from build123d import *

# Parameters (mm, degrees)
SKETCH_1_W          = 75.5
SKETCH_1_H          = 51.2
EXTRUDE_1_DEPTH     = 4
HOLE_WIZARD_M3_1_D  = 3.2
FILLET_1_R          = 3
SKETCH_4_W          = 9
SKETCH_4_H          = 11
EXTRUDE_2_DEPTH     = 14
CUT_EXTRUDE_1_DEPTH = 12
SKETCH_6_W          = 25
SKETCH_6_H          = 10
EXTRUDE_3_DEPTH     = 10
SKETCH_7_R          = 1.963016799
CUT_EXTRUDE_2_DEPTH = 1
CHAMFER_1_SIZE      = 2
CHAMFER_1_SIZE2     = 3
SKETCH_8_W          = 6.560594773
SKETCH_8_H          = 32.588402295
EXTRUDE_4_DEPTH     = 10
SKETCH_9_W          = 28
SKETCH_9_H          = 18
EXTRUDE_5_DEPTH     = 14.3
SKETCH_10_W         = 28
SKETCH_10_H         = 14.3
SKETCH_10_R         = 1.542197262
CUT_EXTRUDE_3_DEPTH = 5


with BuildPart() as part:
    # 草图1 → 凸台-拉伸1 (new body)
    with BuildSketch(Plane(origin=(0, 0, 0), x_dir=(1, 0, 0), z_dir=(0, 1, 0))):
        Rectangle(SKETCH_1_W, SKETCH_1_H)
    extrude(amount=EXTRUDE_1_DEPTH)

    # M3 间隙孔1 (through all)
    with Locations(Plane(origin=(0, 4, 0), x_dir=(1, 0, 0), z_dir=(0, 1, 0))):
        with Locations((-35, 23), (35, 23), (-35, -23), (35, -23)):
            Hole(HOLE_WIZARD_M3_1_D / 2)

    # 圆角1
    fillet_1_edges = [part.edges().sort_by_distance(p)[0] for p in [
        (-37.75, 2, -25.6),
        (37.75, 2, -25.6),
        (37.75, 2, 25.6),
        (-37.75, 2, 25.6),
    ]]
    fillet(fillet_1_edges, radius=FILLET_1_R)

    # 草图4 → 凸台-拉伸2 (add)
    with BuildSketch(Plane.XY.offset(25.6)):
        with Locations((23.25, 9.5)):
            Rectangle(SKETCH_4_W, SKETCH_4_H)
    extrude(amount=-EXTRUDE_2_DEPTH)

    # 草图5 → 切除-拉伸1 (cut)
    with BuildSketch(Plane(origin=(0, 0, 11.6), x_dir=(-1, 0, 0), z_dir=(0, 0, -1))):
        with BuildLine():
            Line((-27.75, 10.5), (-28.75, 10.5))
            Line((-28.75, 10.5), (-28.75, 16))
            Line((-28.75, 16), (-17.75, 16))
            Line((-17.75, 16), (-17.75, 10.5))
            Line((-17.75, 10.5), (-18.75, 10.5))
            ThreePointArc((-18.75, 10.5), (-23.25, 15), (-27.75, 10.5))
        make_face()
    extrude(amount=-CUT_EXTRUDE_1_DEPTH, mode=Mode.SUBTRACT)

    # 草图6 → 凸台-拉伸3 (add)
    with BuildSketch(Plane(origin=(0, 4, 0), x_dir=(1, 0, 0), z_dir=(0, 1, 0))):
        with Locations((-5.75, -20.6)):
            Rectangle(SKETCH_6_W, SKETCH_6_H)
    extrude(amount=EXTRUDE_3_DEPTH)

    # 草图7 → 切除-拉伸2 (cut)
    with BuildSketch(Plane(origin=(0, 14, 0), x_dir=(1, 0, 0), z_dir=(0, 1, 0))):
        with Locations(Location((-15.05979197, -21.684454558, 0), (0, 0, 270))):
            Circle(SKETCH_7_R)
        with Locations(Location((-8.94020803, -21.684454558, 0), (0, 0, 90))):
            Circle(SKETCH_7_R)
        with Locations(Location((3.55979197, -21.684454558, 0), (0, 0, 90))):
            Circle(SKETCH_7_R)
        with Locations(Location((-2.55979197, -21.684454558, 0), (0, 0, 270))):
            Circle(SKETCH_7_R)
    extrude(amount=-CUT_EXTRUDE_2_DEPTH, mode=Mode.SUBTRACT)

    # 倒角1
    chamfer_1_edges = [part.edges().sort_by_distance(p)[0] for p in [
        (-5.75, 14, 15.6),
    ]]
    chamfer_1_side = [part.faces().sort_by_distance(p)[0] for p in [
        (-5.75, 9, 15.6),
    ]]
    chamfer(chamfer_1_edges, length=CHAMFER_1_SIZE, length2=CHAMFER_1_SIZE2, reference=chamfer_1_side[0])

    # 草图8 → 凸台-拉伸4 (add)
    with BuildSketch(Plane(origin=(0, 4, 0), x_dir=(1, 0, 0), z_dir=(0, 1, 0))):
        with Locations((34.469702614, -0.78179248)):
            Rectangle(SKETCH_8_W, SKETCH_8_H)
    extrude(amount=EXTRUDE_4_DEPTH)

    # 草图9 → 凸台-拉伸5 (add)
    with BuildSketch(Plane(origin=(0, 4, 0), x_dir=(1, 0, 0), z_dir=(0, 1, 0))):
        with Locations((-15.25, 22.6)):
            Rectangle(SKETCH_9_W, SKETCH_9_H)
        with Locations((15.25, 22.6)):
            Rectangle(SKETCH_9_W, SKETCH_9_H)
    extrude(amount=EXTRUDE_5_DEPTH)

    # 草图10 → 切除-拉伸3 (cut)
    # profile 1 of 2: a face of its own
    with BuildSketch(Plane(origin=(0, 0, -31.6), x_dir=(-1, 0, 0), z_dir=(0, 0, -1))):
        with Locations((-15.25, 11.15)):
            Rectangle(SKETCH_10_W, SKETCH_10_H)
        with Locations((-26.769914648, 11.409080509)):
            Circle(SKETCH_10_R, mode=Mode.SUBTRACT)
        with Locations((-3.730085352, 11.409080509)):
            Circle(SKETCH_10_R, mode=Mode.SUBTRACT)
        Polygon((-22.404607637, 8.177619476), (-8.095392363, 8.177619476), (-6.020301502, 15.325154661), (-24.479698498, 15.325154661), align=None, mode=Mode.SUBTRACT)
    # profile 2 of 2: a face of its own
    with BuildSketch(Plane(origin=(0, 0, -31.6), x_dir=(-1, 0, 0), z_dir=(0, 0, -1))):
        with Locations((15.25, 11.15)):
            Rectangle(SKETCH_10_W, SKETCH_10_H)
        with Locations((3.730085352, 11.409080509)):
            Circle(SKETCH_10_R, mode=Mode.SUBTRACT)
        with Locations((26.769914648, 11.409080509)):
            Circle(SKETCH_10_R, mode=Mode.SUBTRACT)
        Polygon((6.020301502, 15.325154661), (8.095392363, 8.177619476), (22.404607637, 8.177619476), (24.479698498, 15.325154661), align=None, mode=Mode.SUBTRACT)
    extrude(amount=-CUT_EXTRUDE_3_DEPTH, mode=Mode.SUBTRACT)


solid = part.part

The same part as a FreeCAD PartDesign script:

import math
import FreeCAD as App
import Part
import Sketcher

V = App.Vector
Q = App.Units.Quantity


def edges_at(feature, points):
    """Names of the edges that pass closest to the given points."""
    edges = feature.Shape.Edges
    near = lambda p: min(range(len(edges)), key=lambda i: edges[i].distToShape(Part.Vertex(*p))[0])
    return sorted({f"Edge{near(p) + 1}" for p in points})


def add_polygon(sketch, points):
    """Adds a closed chain of lines whose ends are joined by coincident constraints."""
    first, n = sketch.GeometryCount, len(points)
    for a, b in zip(points, points[1:] + points[:1]):
        sketch.addGeometry(Part.LineSegment(App.Vector(*a, 0), App.Vector(*b, 0)), False)
    for i in range(n):
        sketch.addConstraint(Sketcher.Constraint("Coincident", first + i, 2, first + (i + 1) % n, 1))

doc = App.newDocument("Part")
body = doc.addObject("PartDesign::Body", "Body")

sketch1 = body.newObject("Sketcher::SketchObject", "Sketch")
sketch1.AttachmentSupport = (doc.getObject("XZ_Plane"), [""])
sketch1.MapMode = "FlatFace"
add_polygon(sketch1, [(-38, -26), (-38, 26), (38, 26), (38, -26)])
sketch1.addConstraint(Sketcher.Constraint("Vertical", 0))
sketch1.addConstraint(Sketcher.Constraint("Horizontal", 1))
sketch1.addConstraint(Sketcher.Constraint("Vertical", 2))
sketch1.addConstraint(Sketcher.Constraint("Horizontal", 3))
sketch1.addConstraint(Sketcher.Constraint("Symmetric", 0, 2, 2, 2, -1, 1))
sketch1.addConstraint(Sketcher.Constraint("DistanceX", 1, 1, 1, 2, Q("75.5 mm")))
sketch1.addConstraint(Sketcher.Constraint("DistanceY", 0, 1, 0, 2, Q("51.2 mm")))
pad1 = body.newObject("PartDesign::Pad", "Pad")
pad1.Profile = sketch1
pad1.Length = 4
pad1.Reversed = True

sketch2 = body.newObject("Sketcher::SketchObject", "Sketch001")
sketch2.AttachmentSupport = (doc.getObject("XZ_Plane"), [""])
sketch2.MapMode = "FlatFace"
sketch2.AttachmentOffset = App.Placement(V(0, 0, -4), App.Rotation())
sketch2.addGeometry(Part.Circle(V(-35, -23, 0), V(0, 0, 1), 1.6), False)
sketch2.addGeometry(Part.Circle(V(35, -23, 0), V(0, 0, 1), 1.6), False)
sketch2.addGeometry(Part.Circle(V(-35, 23, 0), V(0, 0, 1), 1.6), False)
sketch2.addGeometry(Part.Circle(V(35, 23, 0), V(0, 0, 1), 1.6), False)
sketch2.addConstraint(Sketcher.Constraint("Equal", 0, 1))
sketch2.addConstraint(Sketcher.Constraint("Equal", 1, 2))
sketch2.addConstraint(Sketcher.Constraint("Equal", 2, 3))
sketch2.addConstraint(Sketcher.Constraint("Symmetric", 1, 3, 2, 3, -1, 1))
sketch2.addConstraint(Sketcher.Constraint("Symmetric", 0, 3, 3, 3, -1, 1))
sketch2.addConstraint(Sketcher.Constraint("Symmetric", 0, 3, 1, 3, -2))
sketch2.addConstraint(Sketcher.Constraint("Diameter", 0, Q("3.2 mm")))
sketch2.addConstraint(Sketcher.Constraint("DistanceX", 0, 3, -1, 1, Q("35 mm")))
sketch2.addConstraint(Sketcher.Constraint("DistanceY", 0, 3, -1, 1, Q("23 mm")))
doc.recompute()
hole = body.newObject("PartDesign::Hole", "Hole")
hole.Profile = sketch2
hole.ThreadType = "None"
hole.Diameter = 3.2
hole.DepthType = "ThroughAll"
hole.Reversed = True
doc.recompute()

fillet = body.newObject("PartDesign::Fillet", "Fillet")
fillet.Base = (hole, edges_at(hole, [
    (-37.75, 2, -25.6),
    (37.75, 2, -25.6),
    (37.75, 2, 25.6),
    (-37.75, 2, 25.6),
]))
fillet.Radius = 3

sketch3 = body.newObject("Sketcher::SketchObject", "Sketch002")
sketch3.AttachmentSupport = (doc.getObject("XY_Plane"), [""])
sketch3.MapMode = "FlatFace"
sketch3.AttachmentOffset = App.Placement(V(0, 0, 25.6), App.Rotation())
add_polygon(sketch3, [(19, 15), (19, 4), (28, 4), (28, 15)])
sketch3.addConstraint(Sketcher.Constraint("Vertical", 0))
sketch3.addConstraint(Sketcher.Constraint("Horizontal", 1))
sketch3.addConstraint(Sketcher.Constraint("Vertical", 2))
sketch3.addConstraint(Sketcher.Constraint("Horizontal", 3))
sketch3.addConstraint(Sketcher.Constraint("DistanceX", 1, 1, 1, 2, Q("9 mm")))
sketch3.addConstraint(Sketcher.Constraint("DistanceY", 0, 2, 0, 1, Q("11 mm")))
sketch3.addConstraint(Sketcher.Constraint("DistanceY", -1, 1, 0, 2, Q("4 mm")))
sketch3.addConstraint(Sketcher.Constraint("DistanceX", -1, 1, 0, 2, Q("18.75 mm")))
pad2 = body.newObject("PartDesign::Pad", "Pad001")
pad2.Profile = sketch3
pad2.Length = 14
pad2.Reversed = True

sketch4 = body.newObject("Sketcher::SketchObject", "Sketch003")
sketch4.AttachmentSupport = (doc.getObject("XY_Plane"), [""])
sketch4.MapMode = "FlatFace"
sketch4.AttachmentOffset = App.Placement(V(0, 0, 11.6), App.Rotation())
sketch4.addGeometry(Part.LineSegment(V(28.8, 10.5, 0), V(27.8, 10.5, 0)), False)
sketch4.addGeometry(Part.ArcOfCircle(Part.Circle(V(23.2, 10.5, 0), V(0, 0, 1), 4.5), math.radians(0), math.radians(180)), False)
sketch4.addGeometry(Part.LineSegment(V(18.8, 10.5, 0), V(17.8, 10.5, 0)), False)
sketch4.addGeometry(Part.LineSegment(V(17.8, 10.5, 0), V(17.8, 16, 0)), False)
sketch4.addGeometry(Part.LineSegment(V(17.8, 16, 0), V(28.8, 16, 0)), False)
sketch4.addGeometry(Part.LineSegment(V(28.8, 16, 0), V(28.8, 10.5, 0)), False)
sketch4.addConstraint(Sketcher.Constraint("Coincident", 0, 2, 1, 1))
sketch4.addConstraint(Sketcher.Constraint("Coincident", 1, 2, 2, 1))
sketch4.addConstraint(Sketcher.Constraint("Coincident", 2, 2, 3, 1))
sketch4.addConstraint(Sketcher.Constraint("Coincident", 3, 2, 4, 1))
sketch4.addConstraint(Sketcher.Constraint("Coincident", 4, 2, 5, 1))
sketch4.addConstraint(Sketcher.Constraint("Coincident", 5, 2, 0, 1))
sketch4.addConstraint(Sketcher.Constraint("Horizontal", 0))
sketch4.addConstraint(Sketcher.Constraint("Horizontal", 2))
sketch4.addConstraint(Sketcher.Constraint("Vertical", 3))
sketch4.addConstraint(Sketcher.Constraint("Horizontal", 4))
sketch4.addConstraint(Sketcher.Constraint("Vertical", 5))
sketch4.addConstraint(Sketcher.Constraint("Horizontal", 1, 3, 0, 2))
sketch4.addConstraint(Sketcher.Constraint("Horizontal", 0, 2, 1, 2))
sketch4.addConstraint(Sketcher.Constraint("Equal", 0, 2))
sketch4.addConstraint(Sketcher.Constraint("Radius", 1, Q("4.5 mm")))
sketch4.addConstraint(Sketcher.Constraint("DistanceX", 0, 2, 0, 1, Q("1 mm")))
sketch4.addConstraint(Sketcher.Constraint("DistanceY", 3, 1, 3, 2, Q("5.5 mm")))
sketch4.addConstraint(Sketcher.Constraint("DistanceY", -1, 1, 3, 2, Q("16 mm")))
sketch4.addConstraint(Sketcher.Constraint("DistanceX", -1, 1, 1, 3, Q("23.25 mm")))
pocket1 = body.newObject("PartDesign::Pocket", "Pocket")
pocket1.Profile = sketch4
pocket1.Length = 12
pocket1.Reversed = True

sketch5 = body.newObject("Sketcher::SketchObject", "Sketch004")
sketch5.AttachmentSupport = (doc.getObject("XZ_Plane"), [""])
sketch5.MapMode = "FlatFace"
sketch5.AttachmentOffset = App.Placement(V(0, 0, -4), App.Rotation())
add_polygon(sketch5, [(-18, 16), (-18, 26), (7, 26), (7, 16)])
sketch5.addConstraint(Sketcher.Constraint("Vertical", 0))
sketch5.addConstraint(Sketcher.Constraint("Horizontal", 1))
sketch5.addConstraint(Sketcher.Constraint("Vertical", 2))
sketch5.addConstraint(Sketcher.Constraint("Horizontal", 3))
sketch5.addConstraint(Sketcher.Constraint("DistanceX", 1, 1, 1, 2, Q("25 mm")))
sketch5.addConstraint(Sketcher.Constraint("DistanceY", 0, 1, 0, 2, Q("10 mm")))
sketch5.addConstraint(Sketcher.Constraint("DistanceY", -1, 1, 0, 2, Q("25.6 mm")))
sketch5.addConstraint(Sketcher.Constraint("DistanceX", 0, 2, -1, 1, Q("18.25 mm")))
pad3 = body.newObject("PartDesign::Pad", "Pad002")
pad3.Profile = sketch5
pad3.Length = 10
pad3.Reversed = True

sketch6 = body.newObject("Sketcher::SketchObject", "Sketch005")
sketch6.AttachmentSupport = (doc.getObject("XZ_Plane"), [""])
sketch6.MapMode = "FlatFace"
sketch6.AttachmentOffset = App.Placement(V(0, 0, -14), App.Rotation())
sketch6.addGeometry(Part.Circle(V(-15.1, 21.7, 0), V(0, 0, 1), 2), False)
sketch6.addGeometry(Part.Circle(V(-8.9, 21.7, 0), V(0, 0, 1), 2), False)
sketch6.addGeometry(Part.Circle(V(3.6, 21.7, 0), V(0, 0, 1), 2), False)
sketch6.addGeometry(Part.Circle(V(-2.6, 21.7, 0), V(0, 0, 1), 2), False)
sketch6.addConstraint(Sketcher.Constraint("Equal", 0, 1))
sketch6.addConstraint(Sketcher.Constraint("Equal", 1, 2))
sketch6.addConstraint(Sketcher.Constraint("Equal", 2, 3))
sketch6.addConstraint(Sketcher.Constraint("Horizontal", 0, 3, 1, 3))
sketch6.addConstraint(Sketcher.Constraint("Horizontal", 1, 3, 2, 3))
sketch6.addConstraint(Sketcher.Constraint("Horizontal", 2, 3, 3, 3))
sketch6.addConstraint(Sketcher.Constraint("DistanceX", 1, 3, 2, 3, Q("12.5 mm")))
sketch6.addConstraint(Sketcher.Constraint("DistanceX", 0, 3, 3, 3, Q("12.5 mm")))
sketch6.addConstraint(Sketcher.Constraint("Diameter", 0, Q("3.926034 mm")))
sketch6.addConstraint(Sketcher.Constraint("DistanceX", 0, 3, -1, 1, Q("15.059792 mm")))
sketch6.addConstraint(Sketcher.Constraint("DistanceX", 1, 3, -1, 1, Q("8.940208 mm")))
sketch6.addConstraint(Sketcher.Constraint("DistanceY", -1, 1, 0, 3, Q("21.684455 mm")))
pocket2 = body.newObject("PartDesign::Pocket", "Pocket001")
pocket2.Profile = sketch6
pocket2.Length = 1
pocket2.Reversed = True
doc.recompute()

chamfer = body.newObject("PartDesign::Chamfer", "Chamfer")
chamfer.Base = (pocket2, edges_at(pocket2, [(-5.75, 14, 15.6)]))
chamfer.ChamferType = "Two distances"
chamfer.Size = 2
chamfer.Size2 = 3

sketch7 = body.newObject("Sketcher::SketchObject", "Sketch006")
sketch7.AttachmentSupport = (doc.getObject("XZ_Plane"), [""])
sketch7.MapMode = "FlatFace"
sketch7.AttachmentOffset = App.Placement(V(0, 0, -4), App.Rotation())
add_polygon(sketch7, [(31, -16), (31, 17), (38, 17), (38, -16)])
sketch7.addConstraint(Sketcher.Constraint("Vertical", 0))
sketch7.addConstraint(Sketcher.Constraint("Horizontal", 1))
sketch7.addConstraint(Sketcher.Constraint("Vertical", 2))
sketch7.addConstraint(Sketcher.Constraint("Horizontal", 3))
sketch7.addConstraint(Sketcher.Constraint("DistanceX", -1, 1, 1, 2, Q("37.75 mm")))
sketch7.addConstraint(Sketcher.Constraint("DistanceX", 1, 1, 1, 2, Q("6.560595 mm")))
sketch7.addConstraint(Sketcher.Constraint("DistanceY", 0, 1, 0, 2, Q("32.588402 mm")))
sketch7.addConstraint(Sketcher.Constraint("DistanceY", 2, 2, -1, 1, Q("15.512409 mm")))
pad4 = body.newObject("PartDesign::Pad", "Pad003")
pad4.Profile = sketch7
pad4.Length = 10
pad4.Reversed = True

sketch8 = body.newObject("Sketcher::SketchObject", "Sketch007")
sketch8.AttachmentSupport = (doc.getObject("XZ_Plane"), [""])
sketch8.MapMode = "FlatFace"
sketch8.AttachmentOffset = App.Placement(V(0, 0, -4), App.Rotation())
add_polygon(sketch8, [(-29, -32), (-29, -14), (-1, -14), (-1, -32)])
add_polygon(sketch8, [(1, -32), (1, -14), (29, -14), (29, -32)])
sketch8.addConstraint(Sketcher.Constraint("Vertical", 0))
sketch8.addConstraint(Sketcher.Constraint("Horizontal", 1))
sketch8.addConstraint(Sketcher.Constraint("Vertical", 2))
sketch8.addConstraint(Sketcher.Constraint("Horizontal", 3))
sketch8.addConstraint(Sketcher.Constraint("Vertical", 4))
sketch8.addConstraint(Sketcher.Constraint("Horizontal", 5))
sketch8.addConstraint(Sketcher.Constraint("Vertical", 6))
sketch8.addConstraint(Sketcher.Constraint("Horizontal", 7))
sketch8.addConstraint(Sketcher.Constraint("Symmetric", 1, 2, 4, 2, -2))
sketch8.addConstraint(Sketcher.Constraint("Symmetric", 3, 2, 6, 2, -2))
sketch8.addConstraint(Sketcher.Constraint("DistanceX", 1, 1, 1, 2, Q("28 mm")))
sketch8.addConstraint(Sketcher.Constraint("DistanceY", 0, 1, 0, 2, Q("18 mm")))
sketch8.addConstraint(Sketcher.Constraint("DistanceY", 0, 2, -1, 1, Q("13.6 mm")))
sketch8.addConstraint(Sketcher.Constraint("DistanceX", 1, 2, 4, 2, Q("2.5 mm")))
pad5 = body.newObject("PartDesign::Pad", "Pad004")
pad5.Profile = sketch8
pad5.Length = 14.3
pad5.Reversed = True

sketch9 = body.newObject("Sketcher::SketchObject", "Sketch008")
sketch9.AttachmentSupport = (doc.getObject("XY_Plane"), [""])
sketch9.MapMode = "FlatFace"
sketch9.AttachmentOffset = App.Placement(V(0, 0, -31.6), App.Rotation())
add_polygon(sketch9, [(29.2, 18.3), (29.2, 4), (1.2, 4), (1.2, 18.3)])
sketch9.addGeometry(Part.Circle(V(26.8, 11.4, 0), V(0, 0, 1), 1.5), False)
sketch9.addGeometry(Part.Circle(V(3.7, 11.4, 0), V(0, 0, 1), 1.5), False)
add_polygon(sketch9, [(8.1, 8.2), (22.4, 8.2), (24.5, 15.3), (6, 15.3)])
add_polygon(sketch9, [(-1.2, 18.3), (-1.2, 4), (-29.2, 4), (-29.2, 18.3)])
sketch9.addGeometry(Part.Circle(V(-3.7, 11.4, 0), V(0, 0, 1), 1.5), False)
sketch9.addGeometry(Part.Circle(V(-26.8, 11.4, 0), V(0, 0, 1), 1.5), False)
add_polygon(sketch9, [(-8.1, 8.2), (-6, 15.3), (-24.5, 15.3), (-22.4, 8.2)])
sketch9.addConstraint(Sketcher.Constraint("Vertical", 0))
sketch9.addConstraint(Sketcher.Constraint("Horizontal", 1))
sketch9.addConstraint(Sketcher.Constraint("Vertical", 2))
sketch9.addConstraint(Sketcher.Constraint("Horizontal", 3))
sketch9.addConstraint(Sketcher.Constraint("Horizontal", 6))
sketch9.addConstraint(Sketcher.Constraint("Horizontal", 8))
sketch9.addConstraint(Sketcher.Constraint("Vertical", 10))
sketch9.addConstraint(Sketcher.Constraint("Horizontal", 11))
sketch9.addConstraint(Sketcher.Constraint("Vertical", 12))
sketch9.addConstraint(Sketcher.Constraint("Horizontal", 13))
sketch9.addConstraint(Sketcher.Constraint("Horizontal", 17))
sketch9.addConstraint(Sketcher.Constraint("Horizontal", 19))
sketch9.addConstraint(Sketcher.Constraint("Equal", 4, 5))
sketch9.addConstraint(Sketcher.Constraint("Equal", 5, 14))
sketch9.addConstraint(Sketcher.Constraint("Equal", 14, 15))
sketch9.addConstraint(Sketcher.Constraint("Symmetric", 5, 3, 14, 3, -2))
sketch9.addConstraint(Sketcher.Constraint("Symmetric", 4, 3, 15, 3, -2))
sketch9.addConstraint(Sketcher.Constraint("Symmetric", 1, 2, 10, 2, -2))
sketch9.addConstraint(Sketcher.Constraint("Symmetric", 3, 2, 12, 2, -2))
sketch9.addConstraint(Sketcher.Constraint("Symmetric", 8, 2, 16, 2, -2))
sketch9.addConstraint(Sketcher.Constraint("Symmetric", 6, 2, 18, 2, -2))
sketch9.addConstraint(Sketcher.Constraint("Parallel", 7, 16))
sketch9.addConstraint(Sketcher.Constraint("Parallel", 9, 18))
sketch9.addConstraint(Sketcher.Constraint("Horizontal", 4, 3, 5, 3))
sketch9.addConstraint(Sketcher.Constraint("Equal", 8, 17))
sketch9.addConstraint(Sketcher.Constraint("DistanceX", 1, 2, 1, 1, Q("28 mm")))
sketch9.addConstraint(Sketcher.Constraint("DistanceY", 0, 2, 0, 1, Q("14.3 mm")))
sketch9.addConstraint(Sketcher.Constraint("DistanceY", -1, 1, 0, 2, Q("4 mm")))
sketch9.addConstraint(Sketcher.Constraint("DistanceX", 14, 3, 4, 3, Q("30.5 mm")))
sketch9.addConstraint(Sketcher.Constraint("DistanceX", 10, 2, 1, 2, Q("2.5 mm")))
sketch9.addConstraint(Sketcher.Constraint("Diameter", 4, Q("3.084395 mm")))
sketch9.addConstraint(Sketcher.Constraint("DistanceX", -1, 1, 7, 2, Q("24.479698 mm")))
sketch9.addConstraint(Sketcher.Constraint("DistanceX", -1, 1, 8, 2, Q("6.020302 mm")))
sketch9.addConstraint(Sketcher.Constraint("DistanceX", 6, 1, 6, 2, Q("14.309215 mm")))
sketch9.addConstraint(Sketcher.Constraint("DistanceY", -1, 1, 4, 3, Q("11.409081 mm")))
sketch9.addConstraint(Sketcher.Constraint("DistanceY", -1, 1, 6, 2, Q("8.177619 mm")))
sketch9.addConstraint(Sketcher.Constraint("DistanceX", 5, 3, 4, 3, Q("23.039829 mm")))
sketch9.addConstraint(Sketcher.Constraint("Distance", 7, Q("7.442665 mm")))
pocket3 = body.newObject("PartDesign::Pocket", "Pocket002")
pocket3.Profile = sketch9
pocket3.Length = 5
pocket3.Reversed = True

doc.recompute()
